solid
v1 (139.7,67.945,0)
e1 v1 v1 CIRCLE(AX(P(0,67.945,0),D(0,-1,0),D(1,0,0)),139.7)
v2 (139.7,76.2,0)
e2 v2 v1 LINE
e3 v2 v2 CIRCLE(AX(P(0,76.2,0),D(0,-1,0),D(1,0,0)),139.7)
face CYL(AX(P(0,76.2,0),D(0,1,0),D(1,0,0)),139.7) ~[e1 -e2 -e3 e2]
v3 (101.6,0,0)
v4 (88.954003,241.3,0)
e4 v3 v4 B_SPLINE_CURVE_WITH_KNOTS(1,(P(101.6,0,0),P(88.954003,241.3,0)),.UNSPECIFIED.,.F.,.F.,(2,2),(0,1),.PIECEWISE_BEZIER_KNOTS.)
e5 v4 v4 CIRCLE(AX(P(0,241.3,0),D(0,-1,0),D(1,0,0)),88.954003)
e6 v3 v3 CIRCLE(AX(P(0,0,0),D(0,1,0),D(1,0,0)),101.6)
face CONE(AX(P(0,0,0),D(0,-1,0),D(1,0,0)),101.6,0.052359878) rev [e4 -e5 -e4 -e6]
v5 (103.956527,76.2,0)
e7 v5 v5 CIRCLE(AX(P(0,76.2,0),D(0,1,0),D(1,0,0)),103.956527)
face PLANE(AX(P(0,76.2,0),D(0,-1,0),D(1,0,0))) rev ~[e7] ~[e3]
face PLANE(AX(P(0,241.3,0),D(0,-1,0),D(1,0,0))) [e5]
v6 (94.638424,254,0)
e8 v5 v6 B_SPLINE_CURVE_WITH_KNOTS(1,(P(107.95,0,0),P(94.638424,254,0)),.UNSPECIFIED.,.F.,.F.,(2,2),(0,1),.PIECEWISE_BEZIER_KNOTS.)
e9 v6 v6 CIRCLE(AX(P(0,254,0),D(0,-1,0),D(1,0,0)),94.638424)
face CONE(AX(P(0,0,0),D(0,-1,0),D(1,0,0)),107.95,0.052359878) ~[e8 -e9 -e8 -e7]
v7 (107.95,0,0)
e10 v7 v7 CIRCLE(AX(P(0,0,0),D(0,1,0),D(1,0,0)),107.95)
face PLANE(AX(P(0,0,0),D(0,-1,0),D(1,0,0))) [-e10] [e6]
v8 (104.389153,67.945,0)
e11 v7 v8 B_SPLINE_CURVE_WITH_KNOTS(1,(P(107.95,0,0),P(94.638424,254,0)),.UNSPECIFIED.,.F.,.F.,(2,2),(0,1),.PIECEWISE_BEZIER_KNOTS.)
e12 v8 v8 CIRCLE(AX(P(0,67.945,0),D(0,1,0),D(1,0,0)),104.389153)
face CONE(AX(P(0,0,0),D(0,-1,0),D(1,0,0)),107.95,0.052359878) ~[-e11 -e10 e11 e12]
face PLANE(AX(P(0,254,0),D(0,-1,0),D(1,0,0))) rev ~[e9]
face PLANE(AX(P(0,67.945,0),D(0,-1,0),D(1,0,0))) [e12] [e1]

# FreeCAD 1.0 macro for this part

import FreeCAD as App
import Part
import Sketcher

V = App.Vector
Q = App.Units.Quantity

doc = App.newDocument("Part")
params = doc.addObject("Spreadsheet::Sheet", "Params")
for row, (alias, value) in enumerate([
    ("sketch1_diameter", "8.5 in"),
    ("pad1_length", "10 in"),
    ("pad1_taper", "-3 deg"),
    ("sketch2_diameter", "8 in"),
    ("pocket1_length", "9.5 in"),
    ("pocket1_taper", "-3 deg"),
    ("sketch3_diameter", "11 in"),
    ("sketch3_diameter2", "8.185 in"),
    ("pad2_length", "0.325 in"),
], start=1):
    params.set(f"A{row}", alias)
    params.set(f"B{row}", "=" + value)
    params.setAlias(f"B{row}", alias)

body = doc.addObject("PartDesign::Body", "Body")

# Sketch on XZ plane
sketch1 = body.newObject("Sketcher::SketchObject", "Sketch")
sketch1.AttachmentSupport = (doc.getObject("XZ_Plane"), [""])
sketch1.MapMode = "FlatFace"
sketch1.addGeometry(Part.Circle(V(0, 0, 0), V(0, 0, 1), 107.95), False)
sketch1.addConstraint(Sketcher.Constraint("Coincident", 0, 3, -1, 1))
sketch1.addConstraint(Sketcher.Constraint("Diameter", 0, Q("8.5 in")))
sketch1.setExpression("Constraints[1]", "Params.sketch1_diameter")
pad1 = body.newObject("PartDesign::Pad", "Pad")
pad1.Profile = sketch1
pad1.setExpression("Length", "Params.pad1_length")
pad1.Reversed = True
pad1.setExpression("TaperAngle", "Params.pad1_taper")

# Sketch on XZ plane
sketch2 = body.newObject("Sketcher::SketchObject", "Sketch001")
sketch2.AttachmentSupport = (doc.getObject("XZ_Plane"), [""])
sketch2.MapMode = "FlatFace"
sketch2.addGeometry(Part.Circle(V(0, 0, 0), V(0, 0, 1), 101.6), False)
sketch2.addConstraint(Sketcher.Constraint("Coincident", 0, 3, -1, 1))
sketch2.addConstraint(Sketcher.Constraint("Diameter", 0, Q("8 in")))
sketch2.setExpression("Constraints[1]", "Params.sketch2_diameter")
pocket1 = body.newObject("PartDesign::Pocket", "Pocket")
pocket1.Profile = sketch2
pocket1.setExpression("Length", "Params.pocket1_length")
pocket1.setExpression("TaperAngle", "Params.pocket1_taper")

# Sketch on XZ plane
sketch3 = body.newObject("Sketcher::SketchObject", "Sketch002")
sketch3.AttachmentSupport = (doc.getObject("XZ_Plane"), [""])
sketch3.MapMode = "FlatFace"
sketch3.AttachmentOffset = App.Placement(V(0, 0, -3 * 25.4), App.Rotation())
sketch3.addGeometry(Part.Circle(V(0, 0, 0), V(0, 0, 1), 139.7), False)
sketch3.addGeometry(Part.Circle(V(0, 0, 0), V(0, 0, 1), 103.9495), False)
sketch3.addConstraint(Sketcher.Constraint("Coincident", 0, 3, -1, 1))
sketch3.addConstraint(Sketcher.Constraint("Coincident", 1, 3, -1, 1))
sketch3.addConstraint(Sketcher.Constraint("Diameter", 0, Q("11 in")))
sketch3.addConstraint(Sketcher.Constraint("Diameter", 1, Q("8.185 in")))
sketch3.setExpression("Constraints[2]", "Params.sketch3_diameter")
sketch3.setExpression("Constraints[3]", "Params.sketch3_diameter2")
pad2 = body.newObject("PartDesign::Pad", "Pad001")
pad2.Profile = sketch3
pad2.setExpression("Length", "Params.pad2_length")

doc.recompute()
